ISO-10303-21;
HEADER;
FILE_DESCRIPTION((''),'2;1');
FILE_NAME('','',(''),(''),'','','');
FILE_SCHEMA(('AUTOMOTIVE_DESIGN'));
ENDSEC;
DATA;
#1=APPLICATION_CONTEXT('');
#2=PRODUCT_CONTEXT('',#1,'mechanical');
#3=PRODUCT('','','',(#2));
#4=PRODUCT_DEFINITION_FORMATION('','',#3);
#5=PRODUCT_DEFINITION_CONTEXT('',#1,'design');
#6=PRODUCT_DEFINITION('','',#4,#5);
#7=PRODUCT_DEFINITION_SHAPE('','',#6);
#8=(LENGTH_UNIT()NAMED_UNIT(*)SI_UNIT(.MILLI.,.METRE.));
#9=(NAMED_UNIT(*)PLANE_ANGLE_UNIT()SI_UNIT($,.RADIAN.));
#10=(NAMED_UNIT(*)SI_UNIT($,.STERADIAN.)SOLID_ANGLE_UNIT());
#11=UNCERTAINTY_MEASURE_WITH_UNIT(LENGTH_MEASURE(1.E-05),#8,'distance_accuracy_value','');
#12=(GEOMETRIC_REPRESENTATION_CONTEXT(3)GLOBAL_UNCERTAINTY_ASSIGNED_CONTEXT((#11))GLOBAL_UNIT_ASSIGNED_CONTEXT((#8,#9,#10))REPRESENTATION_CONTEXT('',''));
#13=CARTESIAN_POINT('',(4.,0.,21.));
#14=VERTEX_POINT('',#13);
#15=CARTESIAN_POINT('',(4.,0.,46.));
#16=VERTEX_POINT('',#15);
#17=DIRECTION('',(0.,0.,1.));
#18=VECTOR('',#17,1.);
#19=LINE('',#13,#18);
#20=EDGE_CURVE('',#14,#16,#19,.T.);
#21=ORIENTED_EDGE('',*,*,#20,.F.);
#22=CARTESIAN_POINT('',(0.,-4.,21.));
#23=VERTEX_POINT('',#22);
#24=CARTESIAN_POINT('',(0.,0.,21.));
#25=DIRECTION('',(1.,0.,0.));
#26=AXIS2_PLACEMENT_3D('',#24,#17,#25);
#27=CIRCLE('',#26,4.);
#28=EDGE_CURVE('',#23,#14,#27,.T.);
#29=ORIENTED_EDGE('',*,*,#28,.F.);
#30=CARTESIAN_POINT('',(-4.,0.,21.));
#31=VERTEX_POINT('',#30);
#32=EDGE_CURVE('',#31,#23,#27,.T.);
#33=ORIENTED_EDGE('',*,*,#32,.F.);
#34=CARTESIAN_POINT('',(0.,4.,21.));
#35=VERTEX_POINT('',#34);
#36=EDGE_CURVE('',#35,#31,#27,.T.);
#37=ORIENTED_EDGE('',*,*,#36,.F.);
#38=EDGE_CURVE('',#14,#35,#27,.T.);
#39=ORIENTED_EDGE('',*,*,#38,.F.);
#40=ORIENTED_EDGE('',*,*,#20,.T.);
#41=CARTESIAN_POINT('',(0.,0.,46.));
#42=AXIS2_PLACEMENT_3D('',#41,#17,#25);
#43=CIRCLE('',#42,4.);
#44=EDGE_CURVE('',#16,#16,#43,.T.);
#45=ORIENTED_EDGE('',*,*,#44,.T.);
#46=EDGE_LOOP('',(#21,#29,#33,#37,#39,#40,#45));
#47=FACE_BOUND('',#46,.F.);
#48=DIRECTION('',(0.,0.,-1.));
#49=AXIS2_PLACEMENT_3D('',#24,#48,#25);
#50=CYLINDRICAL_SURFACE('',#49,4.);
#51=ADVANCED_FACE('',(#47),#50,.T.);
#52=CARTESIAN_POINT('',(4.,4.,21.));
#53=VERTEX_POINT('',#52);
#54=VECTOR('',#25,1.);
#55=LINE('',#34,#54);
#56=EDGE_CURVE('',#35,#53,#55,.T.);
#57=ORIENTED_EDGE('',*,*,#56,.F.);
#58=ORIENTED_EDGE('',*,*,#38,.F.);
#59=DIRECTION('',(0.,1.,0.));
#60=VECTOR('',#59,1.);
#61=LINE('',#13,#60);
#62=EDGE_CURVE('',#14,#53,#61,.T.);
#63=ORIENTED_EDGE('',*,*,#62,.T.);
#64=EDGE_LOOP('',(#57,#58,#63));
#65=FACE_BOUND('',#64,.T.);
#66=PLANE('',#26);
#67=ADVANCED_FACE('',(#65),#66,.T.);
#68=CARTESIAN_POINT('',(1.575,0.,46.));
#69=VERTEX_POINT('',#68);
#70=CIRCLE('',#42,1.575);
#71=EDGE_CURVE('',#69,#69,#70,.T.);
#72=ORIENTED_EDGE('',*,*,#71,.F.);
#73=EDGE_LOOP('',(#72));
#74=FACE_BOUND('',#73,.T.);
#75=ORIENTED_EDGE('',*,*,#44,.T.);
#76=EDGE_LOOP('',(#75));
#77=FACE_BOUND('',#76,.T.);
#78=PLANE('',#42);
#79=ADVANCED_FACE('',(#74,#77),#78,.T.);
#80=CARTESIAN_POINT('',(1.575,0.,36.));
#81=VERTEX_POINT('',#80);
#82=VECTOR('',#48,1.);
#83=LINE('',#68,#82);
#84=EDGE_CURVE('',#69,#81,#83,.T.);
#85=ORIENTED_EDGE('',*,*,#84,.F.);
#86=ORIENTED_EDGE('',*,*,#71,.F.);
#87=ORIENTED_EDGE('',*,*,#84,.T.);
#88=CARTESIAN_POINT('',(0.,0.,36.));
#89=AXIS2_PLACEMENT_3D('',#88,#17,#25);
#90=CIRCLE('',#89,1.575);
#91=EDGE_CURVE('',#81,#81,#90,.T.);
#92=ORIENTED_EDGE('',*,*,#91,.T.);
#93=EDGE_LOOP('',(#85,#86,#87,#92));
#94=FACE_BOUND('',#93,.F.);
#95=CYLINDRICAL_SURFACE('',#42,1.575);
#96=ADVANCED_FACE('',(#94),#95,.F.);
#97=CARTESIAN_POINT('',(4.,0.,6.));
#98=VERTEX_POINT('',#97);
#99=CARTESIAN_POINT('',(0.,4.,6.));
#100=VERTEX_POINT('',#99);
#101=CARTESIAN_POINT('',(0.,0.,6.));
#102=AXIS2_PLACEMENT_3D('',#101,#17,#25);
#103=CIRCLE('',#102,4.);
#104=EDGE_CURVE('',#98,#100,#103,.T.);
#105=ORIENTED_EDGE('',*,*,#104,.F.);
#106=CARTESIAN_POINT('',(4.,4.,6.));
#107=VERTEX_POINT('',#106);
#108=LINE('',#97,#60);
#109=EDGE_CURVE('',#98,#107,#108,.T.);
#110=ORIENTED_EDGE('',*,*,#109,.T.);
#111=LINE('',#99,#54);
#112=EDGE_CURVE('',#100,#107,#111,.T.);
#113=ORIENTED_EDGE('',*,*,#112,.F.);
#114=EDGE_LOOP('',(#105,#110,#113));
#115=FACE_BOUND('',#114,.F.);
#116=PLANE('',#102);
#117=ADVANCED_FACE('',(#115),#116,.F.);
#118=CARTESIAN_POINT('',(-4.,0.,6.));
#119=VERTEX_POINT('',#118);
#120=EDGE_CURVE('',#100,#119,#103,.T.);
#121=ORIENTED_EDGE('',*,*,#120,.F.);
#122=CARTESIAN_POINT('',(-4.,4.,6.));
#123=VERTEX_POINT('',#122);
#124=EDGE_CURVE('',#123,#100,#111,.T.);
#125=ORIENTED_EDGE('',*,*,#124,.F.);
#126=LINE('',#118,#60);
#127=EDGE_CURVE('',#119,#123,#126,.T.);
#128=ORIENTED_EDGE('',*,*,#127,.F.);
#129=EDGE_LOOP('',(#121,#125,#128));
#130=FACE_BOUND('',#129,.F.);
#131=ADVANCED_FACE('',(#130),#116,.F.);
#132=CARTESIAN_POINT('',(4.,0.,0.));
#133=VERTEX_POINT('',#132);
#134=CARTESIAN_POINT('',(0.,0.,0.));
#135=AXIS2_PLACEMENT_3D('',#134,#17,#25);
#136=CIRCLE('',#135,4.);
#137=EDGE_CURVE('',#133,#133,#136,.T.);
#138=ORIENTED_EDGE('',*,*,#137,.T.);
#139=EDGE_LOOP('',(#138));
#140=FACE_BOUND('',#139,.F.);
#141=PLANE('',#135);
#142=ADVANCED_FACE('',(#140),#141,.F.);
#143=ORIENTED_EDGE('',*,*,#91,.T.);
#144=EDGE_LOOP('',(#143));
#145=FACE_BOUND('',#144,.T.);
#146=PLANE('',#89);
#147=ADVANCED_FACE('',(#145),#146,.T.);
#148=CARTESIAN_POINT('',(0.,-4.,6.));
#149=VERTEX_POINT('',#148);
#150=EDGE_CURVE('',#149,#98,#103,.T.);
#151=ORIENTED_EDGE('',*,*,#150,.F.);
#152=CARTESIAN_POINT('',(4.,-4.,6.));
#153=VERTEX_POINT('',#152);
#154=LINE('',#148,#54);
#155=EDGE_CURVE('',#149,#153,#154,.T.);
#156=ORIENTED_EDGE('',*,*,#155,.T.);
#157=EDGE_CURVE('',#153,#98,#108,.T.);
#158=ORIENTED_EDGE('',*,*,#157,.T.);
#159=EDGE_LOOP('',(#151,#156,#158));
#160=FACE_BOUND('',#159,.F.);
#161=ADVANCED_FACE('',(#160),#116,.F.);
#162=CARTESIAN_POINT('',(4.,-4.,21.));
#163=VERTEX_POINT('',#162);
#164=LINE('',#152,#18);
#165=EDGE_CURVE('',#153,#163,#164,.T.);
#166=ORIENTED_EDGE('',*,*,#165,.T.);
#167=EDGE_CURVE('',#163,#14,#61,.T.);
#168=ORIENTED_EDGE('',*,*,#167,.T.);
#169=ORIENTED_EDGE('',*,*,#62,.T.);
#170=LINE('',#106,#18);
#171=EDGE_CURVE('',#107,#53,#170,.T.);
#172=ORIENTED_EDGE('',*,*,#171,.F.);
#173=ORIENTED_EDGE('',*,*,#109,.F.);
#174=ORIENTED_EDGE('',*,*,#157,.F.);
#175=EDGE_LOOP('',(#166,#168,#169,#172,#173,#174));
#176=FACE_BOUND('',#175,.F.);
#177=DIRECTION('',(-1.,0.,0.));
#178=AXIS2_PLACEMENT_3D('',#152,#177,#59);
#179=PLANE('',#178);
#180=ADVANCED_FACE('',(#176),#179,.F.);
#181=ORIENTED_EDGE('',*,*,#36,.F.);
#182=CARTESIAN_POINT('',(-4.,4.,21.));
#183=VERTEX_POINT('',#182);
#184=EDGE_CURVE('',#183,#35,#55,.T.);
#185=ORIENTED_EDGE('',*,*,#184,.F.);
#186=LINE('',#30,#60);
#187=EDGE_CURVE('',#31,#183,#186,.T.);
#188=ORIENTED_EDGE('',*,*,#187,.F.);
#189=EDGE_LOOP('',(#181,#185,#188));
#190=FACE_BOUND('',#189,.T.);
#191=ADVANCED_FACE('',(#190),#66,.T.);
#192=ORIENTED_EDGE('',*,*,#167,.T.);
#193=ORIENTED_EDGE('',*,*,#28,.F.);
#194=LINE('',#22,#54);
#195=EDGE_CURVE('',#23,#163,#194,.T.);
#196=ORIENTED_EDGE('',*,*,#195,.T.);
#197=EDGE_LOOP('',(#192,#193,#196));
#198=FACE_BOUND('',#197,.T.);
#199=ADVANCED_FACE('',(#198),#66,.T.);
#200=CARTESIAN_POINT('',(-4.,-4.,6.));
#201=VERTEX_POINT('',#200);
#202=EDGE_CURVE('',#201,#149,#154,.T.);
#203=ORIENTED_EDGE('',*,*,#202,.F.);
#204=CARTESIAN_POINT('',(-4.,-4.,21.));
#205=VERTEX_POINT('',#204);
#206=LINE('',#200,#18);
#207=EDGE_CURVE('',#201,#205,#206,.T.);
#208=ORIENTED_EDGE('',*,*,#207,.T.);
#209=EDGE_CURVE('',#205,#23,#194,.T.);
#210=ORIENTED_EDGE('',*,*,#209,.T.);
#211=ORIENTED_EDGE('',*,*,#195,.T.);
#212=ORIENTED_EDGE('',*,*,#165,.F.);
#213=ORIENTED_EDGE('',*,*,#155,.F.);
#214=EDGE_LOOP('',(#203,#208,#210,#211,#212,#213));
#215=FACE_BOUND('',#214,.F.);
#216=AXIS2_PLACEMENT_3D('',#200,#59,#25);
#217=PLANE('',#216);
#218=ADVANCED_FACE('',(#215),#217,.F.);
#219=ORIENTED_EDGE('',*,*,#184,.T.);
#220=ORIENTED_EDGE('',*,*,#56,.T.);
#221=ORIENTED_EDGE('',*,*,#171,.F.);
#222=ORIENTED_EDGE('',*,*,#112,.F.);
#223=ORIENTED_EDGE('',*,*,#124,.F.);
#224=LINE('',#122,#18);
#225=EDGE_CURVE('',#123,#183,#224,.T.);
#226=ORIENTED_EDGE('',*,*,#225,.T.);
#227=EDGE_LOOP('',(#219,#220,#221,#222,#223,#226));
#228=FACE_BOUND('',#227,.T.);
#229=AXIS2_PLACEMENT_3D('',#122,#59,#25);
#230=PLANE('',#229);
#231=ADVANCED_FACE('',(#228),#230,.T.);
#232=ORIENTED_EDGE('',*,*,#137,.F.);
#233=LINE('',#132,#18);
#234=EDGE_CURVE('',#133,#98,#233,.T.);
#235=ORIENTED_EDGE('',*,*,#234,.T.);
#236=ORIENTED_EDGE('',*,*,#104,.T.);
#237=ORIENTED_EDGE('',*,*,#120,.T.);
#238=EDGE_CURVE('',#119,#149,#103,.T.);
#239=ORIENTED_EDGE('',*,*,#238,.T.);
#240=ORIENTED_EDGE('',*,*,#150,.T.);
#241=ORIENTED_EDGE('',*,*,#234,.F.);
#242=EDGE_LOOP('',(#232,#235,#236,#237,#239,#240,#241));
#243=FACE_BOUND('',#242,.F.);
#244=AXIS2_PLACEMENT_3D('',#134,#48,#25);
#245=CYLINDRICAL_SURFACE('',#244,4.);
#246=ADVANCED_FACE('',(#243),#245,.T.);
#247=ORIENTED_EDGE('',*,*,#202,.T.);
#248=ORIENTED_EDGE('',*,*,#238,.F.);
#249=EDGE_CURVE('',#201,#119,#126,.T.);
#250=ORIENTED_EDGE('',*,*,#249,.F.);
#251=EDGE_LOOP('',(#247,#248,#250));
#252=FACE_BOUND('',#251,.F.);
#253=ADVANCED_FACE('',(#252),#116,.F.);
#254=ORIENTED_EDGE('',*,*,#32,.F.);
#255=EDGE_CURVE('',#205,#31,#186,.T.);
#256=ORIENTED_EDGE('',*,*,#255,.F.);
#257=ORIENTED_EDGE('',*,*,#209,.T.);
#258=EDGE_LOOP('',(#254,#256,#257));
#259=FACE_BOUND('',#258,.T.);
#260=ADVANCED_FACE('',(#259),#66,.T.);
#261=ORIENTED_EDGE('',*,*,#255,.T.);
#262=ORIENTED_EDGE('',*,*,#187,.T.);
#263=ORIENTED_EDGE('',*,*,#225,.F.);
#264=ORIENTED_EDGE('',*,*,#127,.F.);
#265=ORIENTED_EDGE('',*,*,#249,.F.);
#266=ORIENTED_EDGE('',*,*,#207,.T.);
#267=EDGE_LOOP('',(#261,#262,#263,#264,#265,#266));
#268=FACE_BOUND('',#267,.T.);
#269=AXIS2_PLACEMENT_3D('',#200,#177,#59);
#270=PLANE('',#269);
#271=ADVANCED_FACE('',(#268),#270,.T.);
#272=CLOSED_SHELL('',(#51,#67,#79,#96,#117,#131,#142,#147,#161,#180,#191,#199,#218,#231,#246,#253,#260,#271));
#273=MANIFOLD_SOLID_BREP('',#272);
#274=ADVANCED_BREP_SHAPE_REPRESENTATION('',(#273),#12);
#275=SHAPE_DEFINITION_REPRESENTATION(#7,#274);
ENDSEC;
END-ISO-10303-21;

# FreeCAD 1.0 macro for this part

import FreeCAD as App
import Part
import Sketcher

V = App.Vector
Q = App.Units.Quantity

doc = App.newDocument("Part")
body = doc.addObject("PartDesign::Body", "Body")

# Sketch on XY plane
sketch1 = body.newObject("Sketcher::SketchObject", "Sketch")
sketch1.AttachmentSupport = (doc.getObject("XY_Plane"), [""])
sketch1.MapMode = "FlatFace"
sketch1.addGeometry(Part.Circle(V(0, 0, 0), V(0, 0, 1), 4), False)
sketch1.addConstraint([
    Sketcher.Constraint("Coincident", 0, 3, -1, 1),
    Sketcher.Constraint("Diameter", 0, Q("8 mm")),
])
pad1 = body.newObject("PartDesign::Pad", "Pad")
pad1.Profile = sketch1
pad1.Length = 6

# Sketch on XY plane
sketch2 = body.newObject("Sketcher::SketchObject", "Sketch001")
sketch2.AttachmentSupport = (doc.getObject("XY_Plane"), [""])
sketch2.MapMode = "FlatFace"
sketch2.AttachmentOffset = App.Placement(V(0, 0, 6), App.Rotation())
sketch2.addGeometry([
    Part.LineSegment(V(-4, 4, 0), V(-4, -4, 0)),
    Part.LineSegment(V(-4, -4, 0), V(4, -4, 0)),
    Part.LineSegment(V(4, -4, 0), V(4, 4, 0)),
    Part.LineSegment(V(4, 4, 0), V(-4, 4, 0)),
], False)
sketch2.addConstraint([
    Sketcher.Constraint("Coincident", 0, 2, 1, 1),
    Sketcher.Constraint("Coincident", 1, 2, 2, 1),
    Sketcher.Constraint("Coincident", 2, 2, 3, 1),
    Sketcher.Constraint("Coincident", 3, 2, 0, 1),
    Sketcher.Constraint("Vertical", 0),
    Sketcher.Constraint("Horizontal", 1),
    Sketcher.Constraint("Vertical", 2),
    Sketcher.Constraint("Horizontal", 3),
    Sketcher.Constraint("Symmetric", 0, 2, 2, 2, -1, 1),
    Sketcher.Constraint("Equal", 3, 0),
    Sketcher.Constraint("DistanceX", 1, 1, 1, 2, Q("8 mm")),
])
pad2 = body.newObject("PartDesign::Pad", "Pad001")
pad2.Profile = sketch2
pad2.Length = 15

# Sketch on XY plane
sketch3 = body.newObject("Sketcher::SketchObject", "Sketch002")
sketch3.AttachmentSupport = (doc.getObject("XY_Plane"), [""])
sketch3.MapMode = "FlatFace"
sketch3.AttachmentOffset = App.Placement(V(0, 0, 21), App.Rotation())
sketch3.addGeometry(Part.Circle(V(0, 0, 0), V(0, 0, 1), 4), False)
sketch3.addConstraint([
    Sketcher.Constraint("Coincident", 0, 3, -1, 1),
    Sketcher.Constraint("Diameter", 0, Q("8 mm")),
])
pad3 = body.newObject("PartDesign::Pad", "Pad002")
pad3.Profile = sketch3
pad3.Length = 25

# Sketch on XY plane
sketch4 = body.newObject("Sketcher::SketchObject", "Sketch003")
sketch4.AttachmentSupport = (doc.getObject("XY_Plane"), [""])
sketch4.MapMode = "FlatFace"
sketch4.AttachmentOffset = App.Placement(V(0, 0, 46), App.Rotation())
sketch4.addGeometry(Part.Circle(V(0, 0, 0), V(0, 0, 1), 1.6), False)
sketch4.addConstraint([
    Sketcher.Constraint("Coincident", 0, 3, -1, 1),
    Sketcher.Constraint("Diameter", 0, Q("3.15 mm")),
])
pocket1 = body.newObject("PartDesign::Pocket", "Pocket")
pocket1.Profile = sketch4
pocket1.Length = 10

doc.recompute()
